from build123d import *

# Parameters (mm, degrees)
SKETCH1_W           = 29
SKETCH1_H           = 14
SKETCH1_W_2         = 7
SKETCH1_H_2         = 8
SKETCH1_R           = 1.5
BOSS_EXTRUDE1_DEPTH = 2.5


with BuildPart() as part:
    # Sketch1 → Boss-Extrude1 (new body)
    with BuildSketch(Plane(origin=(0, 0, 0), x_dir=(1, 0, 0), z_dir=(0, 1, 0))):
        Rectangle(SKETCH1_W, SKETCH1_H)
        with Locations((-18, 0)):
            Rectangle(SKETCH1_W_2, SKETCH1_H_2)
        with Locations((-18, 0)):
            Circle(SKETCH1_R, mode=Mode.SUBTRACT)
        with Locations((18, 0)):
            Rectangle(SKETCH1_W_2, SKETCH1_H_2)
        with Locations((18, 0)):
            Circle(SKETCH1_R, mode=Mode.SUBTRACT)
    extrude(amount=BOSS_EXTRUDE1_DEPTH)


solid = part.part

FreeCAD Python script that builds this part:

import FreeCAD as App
import Part
import Sketcher
from FreeCAD import Vector

doc = App.newDocument("Part")
body = doc.addObject("PartDesign::Body", "Body")

# Sketch on XZ plane
sketch1 = doc.addObject("Sketcher::SketchObject", "Sketch")
body.addObject(sketch1)
sketch1.AttachmentSupport = (doc.XZ_Plane, [""])
sketch1.MapMode = "FlatFace"
sketch1.addGeometry(Part.LineSegment(Vector(-14.5, 4, 0), Vector(-14.5, 7, 0)), False)
sketch1.addGeometry(Part.LineSegment(Vector(-14.5, 7, 0), Vector(14.5, 7, 0)), False)
sketch1.addGeometry(Part.LineSegment(Vector(14.5, 7, 0), Vector(14.5, 4, 0)), False)
sketch1.addGeometry(Part.LineSegment(Vector(14.5, 4, 0), Vector(21.5, 4, 0)), False)
sketch1.addGeometry(Part.LineSegment(Vector(21.5, 4, 0), Vector(21.5, -4, 0)), False)
sketch1.addGeometry(Part.LineSegment(Vector(21.5, -4, 0), Vector(14.5, -4, 0)), False)
sketch1.addGeometry(Part.LineSegment(Vector(14.5, -4, 0), Vector(14.5, -7, 0)), False)
sketch1.addGeometry(Part.LineSegment(Vector(14.5, -7, 0), Vector(-14.5, -7, 0)), False)
sketch1.addGeometry(Part.LineSegment(Vector(-14.5, -7, 0), Vector(-14.5, -4, 0)), False)
sketch1.addGeometry(Part.LineSegment(Vector(-14.5, -4, 0), Vector(-21.5, -4, 0)), False)
sketch1.addGeometry(Part.LineSegment(Vector(-21.5, -4, 0), Vector(-21.5, 4, 0)), False)
sketch1.addGeometry(Part.LineSegment(Vector(-21.5, 4, 0), Vector(-14.5, 4, 0)), False)
sketch1.addGeometry(Part.Circle(Vector(-18, 0, 0), Vector(0, 0, 1), 1.5), False)
sketch1.addGeometry(Part.Circle(Vector(18, 0, 0), Vector(0, 0, 1), 1.5), False)
sketch1.addConstraint(Sketcher.Constraint("Coincident", 0, 2, 1, 1))
sketch1.addConstraint(Sketcher.Constraint("Coincident", 1, 2, 2, 1))
sketch1.addConstraint(Sketcher.Constraint("Coincident", 2, 2, 3, 1))
sketch1.addConstraint(Sketcher.Constraint("Coincident", 3, 2, 4, 1))
sketch1.addConstraint(Sketcher.Constraint("Coincident", 4, 2, 5, 1))
sketch1.addConstraint(Sketcher.Constraint("Coincident", 5, 2, 6, 1))
sketch1.addConstraint(Sketcher.Constraint("Coincident", 6, 2, 7, 1))
sketch1.addConstraint(Sketcher.Constraint("Coincident", 7, 2, 8, 1))
sketch1.addConstraint(Sketcher.Constraint("Coincident", 8, 2, 9, 1))
sketch1.addConstraint(Sketcher.Constraint("Coincident", 9, 2, 10, 1))
sketch1.addConstraint(Sketcher.Constraint("Coincident", 10, 2, 11, 1))
sketch1.addConstraint(Sketcher.Constraint("Coincident", 11, 2, 0, 1))
sketch1.addConstraint(Sketcher.Constraint("Vertical", 0))
sketch1.addConstraint(Sketcher.Constraint("Horizontal", 1))
sketch1.addConstraint(Sketcher.Constraint("Vertical", 2))
sketch1.addConstraint(Sketcher.Constraint("Horizontal", 3))
sketch1.addConstraint(Sketcher.Constraint("Vertical", 4))
sketch1.addConstraint(Sketcher.Constraint("Horizontal", 5))
sketch1.addConstraint(Sketcher.Constraint("Vertical", 6))
sketch1.addConstraint(Sketcher.Constraint("Horizontal", 7))
sketch1.addConstraint(Sketcher.Constraint("Vertical", 8))
sketch1.addConstraint(Sketcher.Constraint("Horizontal", 9))
sketch1.addConstraint(Sketcher.Constraint("Vertical", 10))
sketch1.addConstraint(Sketcher.Constraint("Horizontal", 11))
sketch1.addConstraint(Sketcher.Constraint("Equal", 12, 13))
sketch1.addConstraint(Sketcher.Constraint("Symmetric", 12, 3, 13, 3, -1, 1))
sketch1.addConstraint(Sketcher.Constraint("Symmetric", 0, 2, 6, 2, -1, 1))
sketch1.addConstraint(Sketcher.Constraint("Symmetric", 2, 2, 8, 2, -1, 1))
sketch1.addConstraint(Sketcher.Constraint("Symmetric", 4, 2, 10, 2, -1, 1))
sketch1.addConstraint(Sketcher.Constraint("Symmetric", 5, 2, 8, 2, -2))
sketch1.addConstraint(Sketcher.Constraint("PointOnObject", 12, 3, -1))
sketch1.addConstraint(Sketcher.Constraint("Diameter", 12, 3.0))
sketch1.addConstraint(Sketcher.Constraint("DistanceX", 1, 1, 1, 2, 29.0))
sketch1.addConstraint(Sketcher.Constraint("DistanceX", 3, 1, 3, 2, 7.0))
sketch1.addConstraint(Sketcher.Constraint("DistanceY", 0, 1, 0, 2, 3.0))
sketch1.addConstraint(Sketcher.Constraint("DistanceY", 4, 2, 4, 1, 8.0))
sketch1.addConstraint(Sketcher.Constraint("DistanceX", 12, 3, -1, 1, 18.0))
pad1 = doc.addObject("PartDesign::Pad", "Pad")
body.addObject(pad1)
pad1.Profile = sketch1
pad1.Length = 2.5
pad1.Reversed = True

doc.recompute()
